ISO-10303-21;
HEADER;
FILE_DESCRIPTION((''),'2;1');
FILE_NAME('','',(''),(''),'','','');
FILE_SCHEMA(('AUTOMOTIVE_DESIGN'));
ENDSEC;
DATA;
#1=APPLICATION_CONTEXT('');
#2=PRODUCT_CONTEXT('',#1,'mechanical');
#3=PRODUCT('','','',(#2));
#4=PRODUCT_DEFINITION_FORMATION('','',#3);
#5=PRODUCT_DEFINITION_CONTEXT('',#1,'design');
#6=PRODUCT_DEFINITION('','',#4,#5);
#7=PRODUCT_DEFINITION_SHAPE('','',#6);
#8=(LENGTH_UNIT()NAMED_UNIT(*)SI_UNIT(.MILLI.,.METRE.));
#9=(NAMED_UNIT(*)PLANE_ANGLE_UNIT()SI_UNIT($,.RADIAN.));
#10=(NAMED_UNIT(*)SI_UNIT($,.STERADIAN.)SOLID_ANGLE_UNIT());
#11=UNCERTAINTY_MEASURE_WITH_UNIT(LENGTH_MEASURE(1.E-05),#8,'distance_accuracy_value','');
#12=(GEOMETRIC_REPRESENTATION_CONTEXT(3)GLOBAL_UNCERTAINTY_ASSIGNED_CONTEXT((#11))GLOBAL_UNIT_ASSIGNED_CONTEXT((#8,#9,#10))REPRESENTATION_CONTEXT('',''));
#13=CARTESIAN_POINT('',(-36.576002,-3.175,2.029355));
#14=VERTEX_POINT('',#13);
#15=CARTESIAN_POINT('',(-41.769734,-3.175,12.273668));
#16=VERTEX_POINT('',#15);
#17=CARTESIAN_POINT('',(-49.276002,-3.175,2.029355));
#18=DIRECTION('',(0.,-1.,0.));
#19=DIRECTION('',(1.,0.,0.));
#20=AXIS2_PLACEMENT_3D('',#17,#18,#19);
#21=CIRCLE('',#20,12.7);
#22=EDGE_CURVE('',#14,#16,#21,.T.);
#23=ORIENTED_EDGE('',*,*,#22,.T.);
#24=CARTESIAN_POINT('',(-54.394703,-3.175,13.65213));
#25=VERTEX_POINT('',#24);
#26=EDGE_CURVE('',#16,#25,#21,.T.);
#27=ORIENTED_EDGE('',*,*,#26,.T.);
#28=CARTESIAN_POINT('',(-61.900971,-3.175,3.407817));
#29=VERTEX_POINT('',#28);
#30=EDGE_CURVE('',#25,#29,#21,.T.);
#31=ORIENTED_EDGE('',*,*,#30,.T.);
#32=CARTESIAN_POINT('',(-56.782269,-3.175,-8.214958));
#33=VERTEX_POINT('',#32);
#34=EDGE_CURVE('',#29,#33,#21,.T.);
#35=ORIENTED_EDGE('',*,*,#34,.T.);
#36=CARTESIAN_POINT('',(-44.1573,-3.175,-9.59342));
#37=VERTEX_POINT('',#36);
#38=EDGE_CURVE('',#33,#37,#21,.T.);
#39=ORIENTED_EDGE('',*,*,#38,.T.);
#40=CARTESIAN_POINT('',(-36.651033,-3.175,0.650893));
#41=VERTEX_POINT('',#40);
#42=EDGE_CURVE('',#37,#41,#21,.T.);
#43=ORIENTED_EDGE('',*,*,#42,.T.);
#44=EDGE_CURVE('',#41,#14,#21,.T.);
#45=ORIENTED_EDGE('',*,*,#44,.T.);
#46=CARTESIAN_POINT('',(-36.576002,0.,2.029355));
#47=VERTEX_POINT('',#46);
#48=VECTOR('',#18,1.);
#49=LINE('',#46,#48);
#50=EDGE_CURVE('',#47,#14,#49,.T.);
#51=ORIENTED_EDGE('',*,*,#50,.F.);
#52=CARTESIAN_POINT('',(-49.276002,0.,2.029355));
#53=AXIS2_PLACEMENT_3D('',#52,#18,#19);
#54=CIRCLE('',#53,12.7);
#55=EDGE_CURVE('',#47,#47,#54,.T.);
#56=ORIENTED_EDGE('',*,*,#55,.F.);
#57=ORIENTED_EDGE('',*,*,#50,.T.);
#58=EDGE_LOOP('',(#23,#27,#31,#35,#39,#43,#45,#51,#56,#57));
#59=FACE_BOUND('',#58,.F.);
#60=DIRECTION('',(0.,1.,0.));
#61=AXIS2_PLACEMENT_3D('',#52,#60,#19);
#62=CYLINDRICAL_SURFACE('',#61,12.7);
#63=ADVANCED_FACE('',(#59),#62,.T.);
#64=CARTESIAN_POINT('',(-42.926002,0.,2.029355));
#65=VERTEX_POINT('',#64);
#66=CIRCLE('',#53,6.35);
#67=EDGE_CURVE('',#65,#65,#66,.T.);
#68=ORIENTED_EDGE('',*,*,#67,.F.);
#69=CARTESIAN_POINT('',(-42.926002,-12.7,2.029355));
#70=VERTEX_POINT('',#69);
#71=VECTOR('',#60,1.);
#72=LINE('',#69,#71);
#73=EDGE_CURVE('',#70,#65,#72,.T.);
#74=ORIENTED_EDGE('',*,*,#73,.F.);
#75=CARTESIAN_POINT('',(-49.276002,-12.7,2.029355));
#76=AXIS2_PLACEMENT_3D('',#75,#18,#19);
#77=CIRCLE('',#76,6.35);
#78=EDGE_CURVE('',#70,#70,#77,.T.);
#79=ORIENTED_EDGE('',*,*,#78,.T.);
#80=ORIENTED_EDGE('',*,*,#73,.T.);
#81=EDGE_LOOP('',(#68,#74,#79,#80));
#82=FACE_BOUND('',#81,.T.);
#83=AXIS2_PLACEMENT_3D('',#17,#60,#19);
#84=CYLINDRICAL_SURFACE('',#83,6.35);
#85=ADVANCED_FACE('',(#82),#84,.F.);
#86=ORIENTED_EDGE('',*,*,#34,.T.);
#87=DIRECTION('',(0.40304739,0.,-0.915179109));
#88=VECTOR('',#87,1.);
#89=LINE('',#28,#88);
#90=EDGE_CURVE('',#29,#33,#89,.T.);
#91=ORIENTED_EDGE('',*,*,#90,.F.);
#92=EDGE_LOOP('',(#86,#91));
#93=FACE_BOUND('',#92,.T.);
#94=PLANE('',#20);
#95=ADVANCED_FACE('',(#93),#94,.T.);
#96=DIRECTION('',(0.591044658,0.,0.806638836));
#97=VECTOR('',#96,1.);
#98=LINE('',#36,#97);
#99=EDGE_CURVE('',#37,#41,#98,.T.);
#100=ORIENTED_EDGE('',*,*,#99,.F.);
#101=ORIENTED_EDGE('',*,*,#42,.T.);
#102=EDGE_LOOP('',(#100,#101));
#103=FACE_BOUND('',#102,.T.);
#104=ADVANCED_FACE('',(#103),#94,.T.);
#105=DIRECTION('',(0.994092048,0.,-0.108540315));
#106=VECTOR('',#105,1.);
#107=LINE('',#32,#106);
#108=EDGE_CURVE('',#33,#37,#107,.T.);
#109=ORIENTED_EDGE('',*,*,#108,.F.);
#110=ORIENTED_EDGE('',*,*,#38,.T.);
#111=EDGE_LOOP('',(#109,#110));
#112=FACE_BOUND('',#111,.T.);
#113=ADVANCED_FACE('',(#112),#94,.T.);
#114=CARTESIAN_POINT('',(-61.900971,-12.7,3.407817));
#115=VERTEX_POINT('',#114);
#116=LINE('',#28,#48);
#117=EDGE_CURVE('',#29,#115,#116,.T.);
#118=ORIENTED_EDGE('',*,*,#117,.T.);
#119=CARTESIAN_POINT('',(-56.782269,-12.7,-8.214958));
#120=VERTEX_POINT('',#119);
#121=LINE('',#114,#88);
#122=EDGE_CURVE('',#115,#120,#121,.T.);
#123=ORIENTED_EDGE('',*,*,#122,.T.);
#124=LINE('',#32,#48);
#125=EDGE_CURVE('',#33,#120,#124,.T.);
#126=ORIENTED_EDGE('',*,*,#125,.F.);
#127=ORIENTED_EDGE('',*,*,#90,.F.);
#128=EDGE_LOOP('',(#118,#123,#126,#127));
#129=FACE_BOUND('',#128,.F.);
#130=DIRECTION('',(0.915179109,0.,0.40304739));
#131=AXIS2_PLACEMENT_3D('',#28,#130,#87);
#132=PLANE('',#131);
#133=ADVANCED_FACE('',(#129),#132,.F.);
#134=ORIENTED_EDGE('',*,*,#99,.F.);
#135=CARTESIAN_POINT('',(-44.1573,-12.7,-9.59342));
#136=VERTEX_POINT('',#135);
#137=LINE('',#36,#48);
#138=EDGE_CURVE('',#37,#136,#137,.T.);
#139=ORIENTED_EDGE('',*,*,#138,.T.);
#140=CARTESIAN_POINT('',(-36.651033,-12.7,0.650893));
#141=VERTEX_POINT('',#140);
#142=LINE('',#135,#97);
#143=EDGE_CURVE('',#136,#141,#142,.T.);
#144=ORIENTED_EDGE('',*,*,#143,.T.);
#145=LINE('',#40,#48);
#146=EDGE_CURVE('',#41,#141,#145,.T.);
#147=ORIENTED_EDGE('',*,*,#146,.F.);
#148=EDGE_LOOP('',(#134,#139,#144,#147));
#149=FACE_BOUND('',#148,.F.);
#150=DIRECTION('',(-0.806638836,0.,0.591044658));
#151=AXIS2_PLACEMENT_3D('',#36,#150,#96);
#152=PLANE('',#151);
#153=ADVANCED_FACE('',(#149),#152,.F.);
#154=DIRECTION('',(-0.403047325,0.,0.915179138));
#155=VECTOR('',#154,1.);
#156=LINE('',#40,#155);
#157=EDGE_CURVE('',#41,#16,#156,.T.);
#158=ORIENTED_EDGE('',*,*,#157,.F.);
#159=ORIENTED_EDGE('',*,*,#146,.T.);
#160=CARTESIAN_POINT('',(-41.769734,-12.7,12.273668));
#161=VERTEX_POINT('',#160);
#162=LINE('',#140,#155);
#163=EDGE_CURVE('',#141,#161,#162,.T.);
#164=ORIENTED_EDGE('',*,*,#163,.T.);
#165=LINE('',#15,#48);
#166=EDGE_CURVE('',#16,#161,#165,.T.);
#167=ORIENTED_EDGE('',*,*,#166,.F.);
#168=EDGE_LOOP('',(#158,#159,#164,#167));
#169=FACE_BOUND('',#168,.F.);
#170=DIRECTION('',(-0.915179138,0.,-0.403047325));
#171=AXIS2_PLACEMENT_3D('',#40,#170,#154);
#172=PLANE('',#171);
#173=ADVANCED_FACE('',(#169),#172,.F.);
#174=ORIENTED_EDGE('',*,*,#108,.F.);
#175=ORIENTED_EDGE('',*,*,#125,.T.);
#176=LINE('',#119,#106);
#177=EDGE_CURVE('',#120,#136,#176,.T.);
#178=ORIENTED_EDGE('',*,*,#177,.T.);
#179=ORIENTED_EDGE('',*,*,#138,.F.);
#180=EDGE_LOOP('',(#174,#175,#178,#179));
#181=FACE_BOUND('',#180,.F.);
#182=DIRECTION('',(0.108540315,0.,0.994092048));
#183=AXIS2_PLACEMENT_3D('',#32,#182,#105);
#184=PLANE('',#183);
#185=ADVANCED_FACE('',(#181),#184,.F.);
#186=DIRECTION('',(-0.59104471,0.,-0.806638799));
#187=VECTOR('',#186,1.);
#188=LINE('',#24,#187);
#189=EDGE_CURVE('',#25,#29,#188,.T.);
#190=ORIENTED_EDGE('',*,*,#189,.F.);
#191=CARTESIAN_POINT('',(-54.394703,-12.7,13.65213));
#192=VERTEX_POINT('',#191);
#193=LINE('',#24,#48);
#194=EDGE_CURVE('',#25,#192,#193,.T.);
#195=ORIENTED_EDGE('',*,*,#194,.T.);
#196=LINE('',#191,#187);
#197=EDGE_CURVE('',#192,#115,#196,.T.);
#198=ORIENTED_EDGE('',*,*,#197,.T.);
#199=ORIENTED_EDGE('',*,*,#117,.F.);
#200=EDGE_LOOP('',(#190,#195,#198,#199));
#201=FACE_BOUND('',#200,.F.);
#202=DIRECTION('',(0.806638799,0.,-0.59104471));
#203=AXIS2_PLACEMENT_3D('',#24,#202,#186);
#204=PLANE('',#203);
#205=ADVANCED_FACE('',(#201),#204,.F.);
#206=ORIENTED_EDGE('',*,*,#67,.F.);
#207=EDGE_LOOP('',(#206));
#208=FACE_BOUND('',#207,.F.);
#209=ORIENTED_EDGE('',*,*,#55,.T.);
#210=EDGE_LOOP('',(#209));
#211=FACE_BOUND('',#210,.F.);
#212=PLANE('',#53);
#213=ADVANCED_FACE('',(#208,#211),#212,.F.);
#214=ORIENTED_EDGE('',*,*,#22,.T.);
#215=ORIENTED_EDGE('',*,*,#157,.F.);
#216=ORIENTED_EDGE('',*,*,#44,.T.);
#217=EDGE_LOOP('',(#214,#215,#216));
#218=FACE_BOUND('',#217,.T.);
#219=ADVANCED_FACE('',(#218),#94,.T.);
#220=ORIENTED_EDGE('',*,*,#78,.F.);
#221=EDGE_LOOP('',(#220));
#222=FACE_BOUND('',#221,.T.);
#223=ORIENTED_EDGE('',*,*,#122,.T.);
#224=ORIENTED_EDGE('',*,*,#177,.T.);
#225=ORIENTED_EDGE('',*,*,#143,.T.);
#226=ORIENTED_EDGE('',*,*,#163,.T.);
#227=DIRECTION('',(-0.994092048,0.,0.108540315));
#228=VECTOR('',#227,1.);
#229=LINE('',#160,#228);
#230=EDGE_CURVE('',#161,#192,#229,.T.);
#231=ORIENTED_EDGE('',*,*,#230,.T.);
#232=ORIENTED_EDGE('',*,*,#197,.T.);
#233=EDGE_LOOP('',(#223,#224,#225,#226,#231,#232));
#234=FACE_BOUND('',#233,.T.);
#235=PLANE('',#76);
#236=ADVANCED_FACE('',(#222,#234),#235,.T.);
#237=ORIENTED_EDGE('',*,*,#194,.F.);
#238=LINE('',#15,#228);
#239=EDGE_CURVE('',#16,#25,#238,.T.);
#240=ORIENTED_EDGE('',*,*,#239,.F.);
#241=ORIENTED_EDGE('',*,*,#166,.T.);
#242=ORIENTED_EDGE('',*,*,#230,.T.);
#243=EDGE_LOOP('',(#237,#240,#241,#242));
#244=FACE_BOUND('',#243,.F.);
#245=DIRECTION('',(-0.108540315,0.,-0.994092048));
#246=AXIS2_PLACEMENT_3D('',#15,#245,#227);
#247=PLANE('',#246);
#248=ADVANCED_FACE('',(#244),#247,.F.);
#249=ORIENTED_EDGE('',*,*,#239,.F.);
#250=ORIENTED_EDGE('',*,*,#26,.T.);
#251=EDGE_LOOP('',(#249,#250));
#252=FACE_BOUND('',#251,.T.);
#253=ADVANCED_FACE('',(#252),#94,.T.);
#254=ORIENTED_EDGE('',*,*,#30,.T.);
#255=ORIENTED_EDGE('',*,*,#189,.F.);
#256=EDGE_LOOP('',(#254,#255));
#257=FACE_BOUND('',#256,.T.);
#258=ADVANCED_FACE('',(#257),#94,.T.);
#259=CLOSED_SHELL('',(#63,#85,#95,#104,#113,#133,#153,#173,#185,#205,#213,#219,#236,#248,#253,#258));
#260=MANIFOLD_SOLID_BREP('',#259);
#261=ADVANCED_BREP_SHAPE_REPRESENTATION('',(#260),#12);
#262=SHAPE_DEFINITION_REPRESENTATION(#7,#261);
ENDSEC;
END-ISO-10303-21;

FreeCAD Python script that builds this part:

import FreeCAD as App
import Part
import Sketcher
from FreeCAD import Vector
Q = App.Units.Quantity

doc = App.newDocument("Part")
body = doc.addObject("PartDesign::Body", "Body")

sketch1 = body.newObject("Sketcher::SketchObject", "Sketch")
sketch1.AttachmentSupport = (doc.getObject("XZ_Plane"), [""])
sketch1.MapMode = "FlatFace"
sketch1.addGeometry([
    Part.Circle(Vector(-49, 2, 0), Vector(0, 0, 1), 13),
    Part.Circle(Vector(-49, 2, 0), Vector(0, 0, 1), 6),
], False)
sketch1.addConstraint([
    Sketcher.Constraint("Coincident", 1, 3, 0, 3),
    Sketcher.Constraint("Diameter", 0, Q("1 in")),
    Sketcher.Constraint("Diameter", 1, Q("0.5 in")),
    Sketcher.Constraint("DistanceX", 0, 3, -1, 1, Q("1.9400001 in")),
    Sketcher.Constraint("DistanceY", -1, 1, 0, 3, Q("2.029355 mm")),
])
pad1 = body.newObject("PartDesign::Pad", "Pad")
pad1.Profile = sketch1
pad1.Length = Q("0.125 in")

sketch2 = body.newObject("Sketcher::SketchObject", "Sketch001")
sketch2.AttachmentSupport = (doc.getObject("XZ_Plane"), [""])
sketch2.MapMode = "FlatFace"
sketch2.AttachmentOffset = App.Placement(Vector(0, 0, 0.125 * 25.4), App.Rotation())
sketch2.addGeometry([
    Part.LineSegment(Vector(-37, 1, 0), Vector(-42, 12, 0)),
    Part.LineSegment(Vector(-42, 12, 0), Vector(-54, 14, 0)),
    Part.LineSegment(Vector(-54, 14, 0), Vector(-62, 3, 0)),
    Part.LineSegment(Vector(-62, 3, 0), Vector(-57, -8, 0)),
    Part.LineSegment(Vector(-57, -8, 0), Vector(-44, -10, 0)),
    Part.LineSegment(Vector(-44, -10, 0), Vector(-37, 1, 0)),
    Part.Circle(Vector(-49, 2, 0), Vector(0, 0, 1), 6),
], False)
sketch2.addConstraint([
    Sketcher.Constraint("Coincident", 0, 2, 1, 1),
    Sketcher.Constraint("Coincident", 1, 2, 2, 1),
    Sketcher.Constraint("Coincident", 2, 2, 3, 1),
    Sketcher.Constraint("Coincident", 3, 2, 4, 1),
    Sketcher.Constraint("Coincident", 4, 2, 5, 1),
    Sketcher.Constraint("Coincident", 5, 2, 0, 1),
    Sketcher.Constraint("Parallel", 0, 3),
    Sketcher.Constraint("Parallel", 1, 4),
    Sketcher.Constraint("Parallel", 2, 5),
    Sketcher.Constraint("Equal", 0, 1),
    Sketcher.Constraint("Equal", 1, 2),
    Sketcher.Constraint("Equal", 2, 3),
    Sketcher.Constraint("Diameter", 6, Q("0.5 in")),
    Sketcher.Constraint("Distance", 0, Q("0.5 in")),
    Sketcher.Constraint("DistanceX", 6, 3, -1, 1, Q("1.9400001 in")),
    Sketcher.Constraint("DistanceX", 4, 2, -1, 1, Q("44.1573 mm")),
    Sketcher.Constraint("DistanceX", 1, 2, 6, 3, Q("5.118701 mm")),
    Sketcher.Constraint("DistanceX", 2, 2, 3, 2, Q("5.118702 mm")),
    Sketcher.Constraint("DistanceY", -1, 1, 0, 2, Q("12.273668 mm")),
    Sketcher.Constraint("DistanceY", -1, 1, 1, 2, Q("13.65213 mm")),
    Sketcher.Constraint("DistanceY", 5, 2, 6, 3, Q("1.378462 mm")),
])
pad2 = body.newObject("PartDesign::Pad", "Pad001")
pad2.Profile = sketch2
pad2.Length = Q("0.375 in")

doc.recompute()
